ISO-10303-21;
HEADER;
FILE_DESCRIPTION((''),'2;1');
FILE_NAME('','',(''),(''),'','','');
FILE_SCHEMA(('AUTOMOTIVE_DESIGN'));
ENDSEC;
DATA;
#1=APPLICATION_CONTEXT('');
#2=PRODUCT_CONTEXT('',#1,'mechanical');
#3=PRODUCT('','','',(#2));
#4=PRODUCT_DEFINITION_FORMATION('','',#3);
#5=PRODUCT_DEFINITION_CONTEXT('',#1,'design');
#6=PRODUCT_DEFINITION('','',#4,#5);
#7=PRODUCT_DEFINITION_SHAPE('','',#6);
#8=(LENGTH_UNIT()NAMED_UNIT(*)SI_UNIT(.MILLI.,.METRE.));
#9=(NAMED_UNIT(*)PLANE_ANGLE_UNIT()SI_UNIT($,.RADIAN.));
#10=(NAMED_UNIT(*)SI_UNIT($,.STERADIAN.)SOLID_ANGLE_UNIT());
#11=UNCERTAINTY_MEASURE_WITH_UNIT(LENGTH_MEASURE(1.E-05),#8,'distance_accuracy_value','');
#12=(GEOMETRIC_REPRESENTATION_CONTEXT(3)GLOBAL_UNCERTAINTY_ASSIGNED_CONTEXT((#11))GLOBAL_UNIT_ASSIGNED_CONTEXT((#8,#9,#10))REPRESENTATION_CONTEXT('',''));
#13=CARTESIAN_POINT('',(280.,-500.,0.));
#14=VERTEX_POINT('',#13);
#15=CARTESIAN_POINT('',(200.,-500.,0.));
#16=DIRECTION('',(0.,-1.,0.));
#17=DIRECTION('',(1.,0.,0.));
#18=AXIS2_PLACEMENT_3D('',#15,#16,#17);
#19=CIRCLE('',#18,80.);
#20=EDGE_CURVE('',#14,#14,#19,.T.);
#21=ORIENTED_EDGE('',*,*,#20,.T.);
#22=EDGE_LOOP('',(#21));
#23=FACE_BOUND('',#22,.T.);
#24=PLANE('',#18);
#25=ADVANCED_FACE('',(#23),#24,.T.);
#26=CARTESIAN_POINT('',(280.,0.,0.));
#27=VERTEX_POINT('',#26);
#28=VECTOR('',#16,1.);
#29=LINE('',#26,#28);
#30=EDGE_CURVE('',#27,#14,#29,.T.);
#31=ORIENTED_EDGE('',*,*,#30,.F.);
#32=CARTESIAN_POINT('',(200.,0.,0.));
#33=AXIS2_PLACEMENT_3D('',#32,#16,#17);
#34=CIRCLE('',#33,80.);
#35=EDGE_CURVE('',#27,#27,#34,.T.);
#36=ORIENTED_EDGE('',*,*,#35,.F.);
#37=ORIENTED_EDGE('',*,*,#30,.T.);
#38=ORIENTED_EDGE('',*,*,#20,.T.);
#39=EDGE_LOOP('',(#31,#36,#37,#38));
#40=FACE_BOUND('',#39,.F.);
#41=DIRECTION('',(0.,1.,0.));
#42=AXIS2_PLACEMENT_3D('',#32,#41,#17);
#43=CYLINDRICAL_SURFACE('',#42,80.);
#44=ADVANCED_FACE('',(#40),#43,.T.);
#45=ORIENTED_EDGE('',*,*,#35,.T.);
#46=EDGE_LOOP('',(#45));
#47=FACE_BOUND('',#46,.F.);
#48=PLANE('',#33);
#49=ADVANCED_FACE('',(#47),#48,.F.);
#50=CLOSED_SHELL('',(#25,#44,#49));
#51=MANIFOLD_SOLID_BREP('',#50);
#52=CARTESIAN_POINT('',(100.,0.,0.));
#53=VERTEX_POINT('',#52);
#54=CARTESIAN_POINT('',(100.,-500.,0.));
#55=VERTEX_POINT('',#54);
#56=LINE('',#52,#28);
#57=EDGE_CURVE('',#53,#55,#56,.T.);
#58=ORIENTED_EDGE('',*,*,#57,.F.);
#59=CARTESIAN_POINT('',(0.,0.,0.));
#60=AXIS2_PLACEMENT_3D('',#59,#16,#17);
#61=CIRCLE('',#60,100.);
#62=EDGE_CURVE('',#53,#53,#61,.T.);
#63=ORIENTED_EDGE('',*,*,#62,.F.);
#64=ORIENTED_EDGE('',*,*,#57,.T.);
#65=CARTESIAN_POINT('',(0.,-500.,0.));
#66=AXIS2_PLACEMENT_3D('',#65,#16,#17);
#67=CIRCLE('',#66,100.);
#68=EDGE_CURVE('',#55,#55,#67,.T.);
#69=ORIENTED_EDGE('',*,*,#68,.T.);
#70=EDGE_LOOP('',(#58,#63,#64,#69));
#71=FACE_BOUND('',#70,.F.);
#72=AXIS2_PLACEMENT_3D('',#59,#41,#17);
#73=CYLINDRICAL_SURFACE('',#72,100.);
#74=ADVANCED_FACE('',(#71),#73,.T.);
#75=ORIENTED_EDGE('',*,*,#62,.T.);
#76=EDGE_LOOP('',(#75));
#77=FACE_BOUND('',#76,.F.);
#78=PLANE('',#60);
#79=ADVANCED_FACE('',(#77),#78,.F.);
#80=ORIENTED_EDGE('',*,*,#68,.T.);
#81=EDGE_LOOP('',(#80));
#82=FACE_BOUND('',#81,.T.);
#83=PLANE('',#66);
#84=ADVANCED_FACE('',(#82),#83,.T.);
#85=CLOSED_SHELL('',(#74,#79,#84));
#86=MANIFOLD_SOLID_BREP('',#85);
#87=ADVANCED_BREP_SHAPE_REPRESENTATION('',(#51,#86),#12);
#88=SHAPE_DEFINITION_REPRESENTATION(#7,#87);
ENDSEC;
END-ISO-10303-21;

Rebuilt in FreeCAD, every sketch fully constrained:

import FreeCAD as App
import Part
import Sketcher
Q = App.Units.Quantity

doc = App.newDocument("Part")
params = doc.addObject("Spreadsheet::Sheet", "Params")
for row, (alias, value) in enumerate([
    ("sketch1_diameter", "200 mm"),
    ("sketch1_diameter2", "160 mm"),
    ("pad1_length", "500 mm"),
], start=1):
    params.set(f"A{row}", alias)
    params.set(f"B{row}", "=" + value)
    params.setAlias(f"B{row}", alias)

body = doc.addObject("PartDesign::Body", "Body")
body.AllowCompound = True

sketch1 = body.newObject("Sketcher::SketchObject", "Sketch")
sketch1.AttachmentSupport = (doc.getObject("XZ_Plane"), [""])
sketch1.MapMode = "FlatFace"
sketch1.addGeometry([
    Part.Circle(App.Vector(0, 0, 0), App.Vector(0, 0, 1), 100),
    Part.Circle(App.Vector(200, 0, 0), App.Vector(0, 0, 1), 80),
], False)
sketch1.addConstraint([
    Sketcher.Constraint("Coincident", 0, 3, -1, 1),
    Sketcher.Constraint("PointOnObject", 1, 3, -1),
    Sketcher.Constraint("Diameter", 0, Q("200 mm")),
    Sketcher.Constraint("Diameter", 1, Q("160 mm")),
    Sketcher.Constraint("DistanceX", -1, 1, 1, 3, Q("200 mm")),
])
sketch1.setExpression("Constraints[2]", "Params.sketch1_diameter")
sketch1.setExpression("Constraints[3]", "Params.sketch1_diameter2")
pad1 = body.newObject("PartDesign::Pad", "Pad")
pad1.Profile = sketch1
pad1.setExpression("Length", "Params.pad1_length")

doc.recompute()
